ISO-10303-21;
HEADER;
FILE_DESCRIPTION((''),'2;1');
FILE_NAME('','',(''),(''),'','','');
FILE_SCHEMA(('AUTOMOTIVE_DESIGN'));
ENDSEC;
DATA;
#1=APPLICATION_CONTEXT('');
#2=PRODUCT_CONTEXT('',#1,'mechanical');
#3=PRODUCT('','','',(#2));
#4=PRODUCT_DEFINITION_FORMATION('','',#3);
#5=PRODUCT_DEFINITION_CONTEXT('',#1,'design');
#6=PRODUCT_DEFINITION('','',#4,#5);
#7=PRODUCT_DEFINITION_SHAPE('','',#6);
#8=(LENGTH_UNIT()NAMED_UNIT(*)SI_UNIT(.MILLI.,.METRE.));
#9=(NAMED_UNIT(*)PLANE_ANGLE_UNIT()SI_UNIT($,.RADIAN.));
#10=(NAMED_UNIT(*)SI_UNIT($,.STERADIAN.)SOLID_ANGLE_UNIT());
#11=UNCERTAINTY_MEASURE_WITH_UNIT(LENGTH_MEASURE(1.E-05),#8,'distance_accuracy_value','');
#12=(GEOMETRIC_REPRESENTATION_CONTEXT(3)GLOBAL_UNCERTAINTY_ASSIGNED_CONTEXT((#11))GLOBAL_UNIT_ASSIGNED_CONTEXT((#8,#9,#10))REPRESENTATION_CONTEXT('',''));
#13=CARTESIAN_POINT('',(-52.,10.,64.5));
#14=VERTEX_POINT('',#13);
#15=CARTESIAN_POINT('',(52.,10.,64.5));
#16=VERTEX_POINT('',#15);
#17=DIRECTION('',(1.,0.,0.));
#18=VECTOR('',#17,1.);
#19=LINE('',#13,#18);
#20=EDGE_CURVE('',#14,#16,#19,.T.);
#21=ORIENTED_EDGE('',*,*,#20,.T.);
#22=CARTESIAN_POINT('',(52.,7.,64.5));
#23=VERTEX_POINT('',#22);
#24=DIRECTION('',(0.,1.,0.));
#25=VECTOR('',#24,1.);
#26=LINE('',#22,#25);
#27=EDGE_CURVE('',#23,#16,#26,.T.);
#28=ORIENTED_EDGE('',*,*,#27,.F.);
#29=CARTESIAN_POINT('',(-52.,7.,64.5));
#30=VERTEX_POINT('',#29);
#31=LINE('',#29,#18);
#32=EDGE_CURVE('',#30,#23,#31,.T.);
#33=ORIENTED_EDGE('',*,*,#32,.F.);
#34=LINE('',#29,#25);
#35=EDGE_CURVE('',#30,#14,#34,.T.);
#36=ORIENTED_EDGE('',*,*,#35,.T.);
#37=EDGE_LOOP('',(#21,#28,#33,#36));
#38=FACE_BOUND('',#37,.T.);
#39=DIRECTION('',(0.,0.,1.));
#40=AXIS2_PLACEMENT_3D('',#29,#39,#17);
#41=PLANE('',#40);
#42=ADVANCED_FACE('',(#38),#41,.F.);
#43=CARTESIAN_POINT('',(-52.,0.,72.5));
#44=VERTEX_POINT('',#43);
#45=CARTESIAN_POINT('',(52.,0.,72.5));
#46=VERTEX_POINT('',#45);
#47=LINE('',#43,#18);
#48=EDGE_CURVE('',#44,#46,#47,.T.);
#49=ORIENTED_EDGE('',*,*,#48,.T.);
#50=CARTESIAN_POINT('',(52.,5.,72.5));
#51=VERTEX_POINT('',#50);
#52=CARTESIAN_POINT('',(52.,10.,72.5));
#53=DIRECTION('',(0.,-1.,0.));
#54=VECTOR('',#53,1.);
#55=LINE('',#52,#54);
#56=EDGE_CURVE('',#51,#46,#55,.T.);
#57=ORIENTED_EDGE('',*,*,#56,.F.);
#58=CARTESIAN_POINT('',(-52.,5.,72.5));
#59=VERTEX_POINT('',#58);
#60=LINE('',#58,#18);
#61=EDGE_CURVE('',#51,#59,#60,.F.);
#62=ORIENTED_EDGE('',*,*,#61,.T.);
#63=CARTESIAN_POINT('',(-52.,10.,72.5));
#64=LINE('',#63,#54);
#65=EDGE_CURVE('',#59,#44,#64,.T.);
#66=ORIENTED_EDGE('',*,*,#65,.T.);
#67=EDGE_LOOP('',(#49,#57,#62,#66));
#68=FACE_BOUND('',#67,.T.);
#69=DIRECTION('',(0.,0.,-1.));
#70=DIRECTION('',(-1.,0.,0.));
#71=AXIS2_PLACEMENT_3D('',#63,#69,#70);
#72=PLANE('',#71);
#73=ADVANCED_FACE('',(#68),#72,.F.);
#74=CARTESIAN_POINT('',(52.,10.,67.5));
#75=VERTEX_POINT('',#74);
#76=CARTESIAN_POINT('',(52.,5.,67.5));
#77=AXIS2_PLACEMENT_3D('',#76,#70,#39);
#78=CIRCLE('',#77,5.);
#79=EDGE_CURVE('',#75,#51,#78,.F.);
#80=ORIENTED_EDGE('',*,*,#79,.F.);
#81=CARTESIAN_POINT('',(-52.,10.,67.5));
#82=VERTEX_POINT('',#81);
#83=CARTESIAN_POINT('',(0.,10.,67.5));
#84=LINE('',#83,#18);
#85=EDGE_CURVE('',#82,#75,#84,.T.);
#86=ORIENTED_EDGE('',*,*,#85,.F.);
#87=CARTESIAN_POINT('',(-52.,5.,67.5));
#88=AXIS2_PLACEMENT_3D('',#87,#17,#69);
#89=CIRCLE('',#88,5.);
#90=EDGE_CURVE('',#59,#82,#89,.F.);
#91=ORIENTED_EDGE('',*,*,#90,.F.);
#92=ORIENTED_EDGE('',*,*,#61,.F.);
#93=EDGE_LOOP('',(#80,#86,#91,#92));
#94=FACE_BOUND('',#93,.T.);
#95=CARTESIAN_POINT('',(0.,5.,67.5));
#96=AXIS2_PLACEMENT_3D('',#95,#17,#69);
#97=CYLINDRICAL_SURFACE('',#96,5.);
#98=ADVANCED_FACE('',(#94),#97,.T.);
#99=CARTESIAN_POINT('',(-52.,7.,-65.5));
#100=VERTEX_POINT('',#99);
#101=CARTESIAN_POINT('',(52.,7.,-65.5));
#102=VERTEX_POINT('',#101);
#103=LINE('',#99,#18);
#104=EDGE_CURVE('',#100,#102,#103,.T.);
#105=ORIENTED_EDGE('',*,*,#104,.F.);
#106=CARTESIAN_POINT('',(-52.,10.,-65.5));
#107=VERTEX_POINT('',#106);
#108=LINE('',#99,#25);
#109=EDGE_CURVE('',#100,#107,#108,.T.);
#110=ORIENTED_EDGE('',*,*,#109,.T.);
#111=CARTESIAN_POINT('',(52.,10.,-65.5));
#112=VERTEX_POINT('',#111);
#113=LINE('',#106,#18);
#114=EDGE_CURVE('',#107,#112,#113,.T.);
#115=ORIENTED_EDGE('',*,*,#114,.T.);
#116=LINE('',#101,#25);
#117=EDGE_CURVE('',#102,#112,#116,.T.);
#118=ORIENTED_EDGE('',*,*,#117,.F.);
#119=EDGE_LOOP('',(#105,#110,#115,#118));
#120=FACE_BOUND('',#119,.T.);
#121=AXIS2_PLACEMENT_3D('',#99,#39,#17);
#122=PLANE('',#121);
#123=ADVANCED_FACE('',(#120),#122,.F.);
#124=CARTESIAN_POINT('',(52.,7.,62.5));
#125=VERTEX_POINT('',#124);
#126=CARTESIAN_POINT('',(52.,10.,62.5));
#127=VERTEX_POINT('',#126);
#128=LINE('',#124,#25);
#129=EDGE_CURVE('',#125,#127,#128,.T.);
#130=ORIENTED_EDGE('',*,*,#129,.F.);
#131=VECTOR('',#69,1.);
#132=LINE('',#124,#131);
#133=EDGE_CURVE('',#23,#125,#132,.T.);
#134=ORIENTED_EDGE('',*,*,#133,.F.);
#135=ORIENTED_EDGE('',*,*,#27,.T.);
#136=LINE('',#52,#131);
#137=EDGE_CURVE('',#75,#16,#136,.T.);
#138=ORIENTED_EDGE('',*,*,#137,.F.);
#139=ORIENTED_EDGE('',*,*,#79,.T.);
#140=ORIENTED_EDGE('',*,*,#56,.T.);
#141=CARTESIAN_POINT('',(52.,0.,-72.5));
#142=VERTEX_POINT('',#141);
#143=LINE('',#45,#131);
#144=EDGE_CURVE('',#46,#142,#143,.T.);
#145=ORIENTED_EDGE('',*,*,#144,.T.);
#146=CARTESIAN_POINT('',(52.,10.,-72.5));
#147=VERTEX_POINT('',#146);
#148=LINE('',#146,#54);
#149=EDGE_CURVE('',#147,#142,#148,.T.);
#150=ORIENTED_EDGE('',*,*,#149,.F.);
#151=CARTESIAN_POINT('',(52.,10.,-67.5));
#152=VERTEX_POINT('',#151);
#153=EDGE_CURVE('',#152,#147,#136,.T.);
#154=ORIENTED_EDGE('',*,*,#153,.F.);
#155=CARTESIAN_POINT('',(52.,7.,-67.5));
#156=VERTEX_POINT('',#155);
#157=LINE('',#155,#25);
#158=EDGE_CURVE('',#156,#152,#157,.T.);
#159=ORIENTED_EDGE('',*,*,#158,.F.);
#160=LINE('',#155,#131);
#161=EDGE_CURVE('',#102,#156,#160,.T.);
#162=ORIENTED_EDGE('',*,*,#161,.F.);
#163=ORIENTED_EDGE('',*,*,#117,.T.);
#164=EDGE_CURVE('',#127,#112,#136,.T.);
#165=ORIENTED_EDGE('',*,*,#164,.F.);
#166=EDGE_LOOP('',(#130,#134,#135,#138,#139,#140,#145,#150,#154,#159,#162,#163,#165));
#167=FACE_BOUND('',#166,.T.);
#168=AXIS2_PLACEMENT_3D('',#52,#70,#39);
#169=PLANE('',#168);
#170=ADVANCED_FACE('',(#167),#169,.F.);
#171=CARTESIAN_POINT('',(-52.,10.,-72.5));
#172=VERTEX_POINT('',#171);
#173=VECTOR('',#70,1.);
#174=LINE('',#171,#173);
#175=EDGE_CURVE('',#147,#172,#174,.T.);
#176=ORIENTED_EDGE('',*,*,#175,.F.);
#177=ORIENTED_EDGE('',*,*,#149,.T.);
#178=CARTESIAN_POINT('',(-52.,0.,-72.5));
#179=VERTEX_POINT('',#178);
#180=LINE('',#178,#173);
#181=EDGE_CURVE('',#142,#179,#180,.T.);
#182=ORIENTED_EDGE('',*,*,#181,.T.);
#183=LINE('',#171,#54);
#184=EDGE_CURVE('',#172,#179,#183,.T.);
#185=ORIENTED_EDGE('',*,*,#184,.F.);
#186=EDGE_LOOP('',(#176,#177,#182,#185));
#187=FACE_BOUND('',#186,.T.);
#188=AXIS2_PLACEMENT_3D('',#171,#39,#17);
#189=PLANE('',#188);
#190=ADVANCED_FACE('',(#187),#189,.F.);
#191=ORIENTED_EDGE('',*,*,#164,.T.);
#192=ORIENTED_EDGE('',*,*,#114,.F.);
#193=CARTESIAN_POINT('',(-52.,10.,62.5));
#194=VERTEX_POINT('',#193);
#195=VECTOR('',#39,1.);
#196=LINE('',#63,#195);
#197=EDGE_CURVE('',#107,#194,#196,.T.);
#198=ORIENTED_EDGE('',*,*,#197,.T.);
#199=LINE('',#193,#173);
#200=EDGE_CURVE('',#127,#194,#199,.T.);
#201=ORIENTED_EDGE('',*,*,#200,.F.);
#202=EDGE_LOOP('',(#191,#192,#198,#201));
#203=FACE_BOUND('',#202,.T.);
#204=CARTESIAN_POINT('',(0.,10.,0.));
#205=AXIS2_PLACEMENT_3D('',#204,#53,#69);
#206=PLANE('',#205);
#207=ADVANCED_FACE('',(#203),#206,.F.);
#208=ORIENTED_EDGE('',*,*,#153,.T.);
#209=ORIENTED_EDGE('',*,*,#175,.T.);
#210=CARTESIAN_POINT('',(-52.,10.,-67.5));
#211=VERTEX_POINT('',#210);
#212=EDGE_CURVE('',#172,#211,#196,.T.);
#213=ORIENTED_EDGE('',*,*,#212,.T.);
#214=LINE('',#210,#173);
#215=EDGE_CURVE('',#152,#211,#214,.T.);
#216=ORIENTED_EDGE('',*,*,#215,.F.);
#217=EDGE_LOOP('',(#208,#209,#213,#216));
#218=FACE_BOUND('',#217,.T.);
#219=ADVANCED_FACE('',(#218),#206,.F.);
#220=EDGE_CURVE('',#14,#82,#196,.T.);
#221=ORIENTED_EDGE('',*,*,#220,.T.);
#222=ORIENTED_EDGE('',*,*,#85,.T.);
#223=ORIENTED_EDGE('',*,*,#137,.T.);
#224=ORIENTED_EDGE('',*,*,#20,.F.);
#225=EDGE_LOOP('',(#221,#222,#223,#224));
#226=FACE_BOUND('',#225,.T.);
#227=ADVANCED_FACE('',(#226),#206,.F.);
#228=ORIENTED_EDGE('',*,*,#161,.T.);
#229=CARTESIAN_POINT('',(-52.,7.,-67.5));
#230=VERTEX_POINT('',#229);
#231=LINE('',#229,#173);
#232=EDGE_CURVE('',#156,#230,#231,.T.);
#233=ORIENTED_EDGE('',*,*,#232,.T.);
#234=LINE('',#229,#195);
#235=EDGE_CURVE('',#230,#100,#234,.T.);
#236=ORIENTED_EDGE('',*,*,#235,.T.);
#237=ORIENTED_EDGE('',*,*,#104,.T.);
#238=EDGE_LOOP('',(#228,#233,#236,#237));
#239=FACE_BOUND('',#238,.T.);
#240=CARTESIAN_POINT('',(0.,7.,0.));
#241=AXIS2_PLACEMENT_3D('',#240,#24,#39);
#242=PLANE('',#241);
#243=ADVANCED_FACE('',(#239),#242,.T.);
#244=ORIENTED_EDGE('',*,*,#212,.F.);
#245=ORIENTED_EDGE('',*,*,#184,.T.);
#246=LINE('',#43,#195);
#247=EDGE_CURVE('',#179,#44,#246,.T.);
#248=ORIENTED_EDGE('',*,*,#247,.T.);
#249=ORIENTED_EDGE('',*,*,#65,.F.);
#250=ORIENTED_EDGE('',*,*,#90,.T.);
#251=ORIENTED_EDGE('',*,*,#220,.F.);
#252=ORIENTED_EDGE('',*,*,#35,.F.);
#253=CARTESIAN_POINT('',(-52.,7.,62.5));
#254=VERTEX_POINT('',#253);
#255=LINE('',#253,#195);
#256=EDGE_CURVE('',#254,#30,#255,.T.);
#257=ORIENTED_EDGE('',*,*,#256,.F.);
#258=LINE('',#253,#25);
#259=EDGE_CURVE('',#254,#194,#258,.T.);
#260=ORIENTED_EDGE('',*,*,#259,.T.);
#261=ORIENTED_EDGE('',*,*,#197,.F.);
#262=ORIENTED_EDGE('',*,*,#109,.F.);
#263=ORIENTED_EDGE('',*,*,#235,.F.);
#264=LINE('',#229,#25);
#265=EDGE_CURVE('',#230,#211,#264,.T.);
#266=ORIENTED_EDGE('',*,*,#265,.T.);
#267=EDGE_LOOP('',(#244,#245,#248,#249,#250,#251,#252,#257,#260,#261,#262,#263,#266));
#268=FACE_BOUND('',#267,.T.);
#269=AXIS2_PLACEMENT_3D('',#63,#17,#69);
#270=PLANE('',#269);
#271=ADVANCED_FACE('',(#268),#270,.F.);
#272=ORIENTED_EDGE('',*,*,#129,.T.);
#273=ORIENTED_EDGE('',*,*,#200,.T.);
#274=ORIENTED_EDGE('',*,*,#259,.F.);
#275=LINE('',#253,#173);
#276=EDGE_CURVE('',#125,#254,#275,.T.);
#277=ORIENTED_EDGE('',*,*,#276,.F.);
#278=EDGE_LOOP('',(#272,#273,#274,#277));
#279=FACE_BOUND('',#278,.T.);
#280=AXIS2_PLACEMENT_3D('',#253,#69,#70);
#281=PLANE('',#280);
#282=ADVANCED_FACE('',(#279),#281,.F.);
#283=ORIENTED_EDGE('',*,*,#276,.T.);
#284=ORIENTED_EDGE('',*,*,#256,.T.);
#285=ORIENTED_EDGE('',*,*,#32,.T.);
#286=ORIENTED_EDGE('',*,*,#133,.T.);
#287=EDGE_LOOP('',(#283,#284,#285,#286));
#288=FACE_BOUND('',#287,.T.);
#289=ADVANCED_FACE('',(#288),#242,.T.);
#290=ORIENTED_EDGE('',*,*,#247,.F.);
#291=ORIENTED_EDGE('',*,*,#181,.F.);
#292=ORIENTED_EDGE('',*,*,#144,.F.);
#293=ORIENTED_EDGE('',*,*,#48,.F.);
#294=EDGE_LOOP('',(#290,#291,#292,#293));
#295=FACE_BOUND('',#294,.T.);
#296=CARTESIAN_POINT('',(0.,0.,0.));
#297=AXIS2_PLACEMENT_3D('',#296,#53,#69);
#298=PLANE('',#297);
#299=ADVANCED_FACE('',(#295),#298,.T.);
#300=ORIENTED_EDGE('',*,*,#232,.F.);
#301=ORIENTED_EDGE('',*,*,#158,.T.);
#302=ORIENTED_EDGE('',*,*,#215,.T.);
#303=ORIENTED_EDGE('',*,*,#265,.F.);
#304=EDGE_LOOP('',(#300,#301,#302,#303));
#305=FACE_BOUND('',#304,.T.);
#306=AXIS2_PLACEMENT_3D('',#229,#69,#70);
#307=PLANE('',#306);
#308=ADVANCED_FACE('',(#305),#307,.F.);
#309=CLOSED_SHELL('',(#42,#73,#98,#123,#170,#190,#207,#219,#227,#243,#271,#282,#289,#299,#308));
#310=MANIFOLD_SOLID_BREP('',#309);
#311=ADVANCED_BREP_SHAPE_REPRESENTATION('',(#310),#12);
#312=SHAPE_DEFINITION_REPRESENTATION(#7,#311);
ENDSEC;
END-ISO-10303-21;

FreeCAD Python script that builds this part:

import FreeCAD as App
import Part
import Sketcher
Q = App.Units.Quantity


def edges_at(feature, points):
    """Names of the edges that pass closest to the given points."""
    edges = feature.Shape.Edges
    near = lambda p: min(range(len(edges)), key=lambda i: edges[i].distToShape(Part.Vertex(*p))[0])
    return sorted({f"Edge{near(p) + 1}" for p in points})

doc = App.newDocument("Part")
params = doc.addObject("Spreadsheet::Sheet", "Params")
for row, (alias, value) in enumerate([
    ("sketch1_width", "104 mm"),
    ("sketch1_height", "145 mm"),
    ("pad1_length", "10 mm"),
    ("sketch2_width", "104 mm"),
    ("sketch2_height", "2 mm"),
    ("pocket1_length", "3 mm"),
    ("fillet_radius", "5 mm"),
], start=1):
    params.set(f"A{row}", alias)
    params.set(f"B{row}", "=" + value)
    params.setAlias(f"B{row}", alias)

body = doc.addObject("PartDesign::Body", "Body")

sketch1 = doc.addObject("Sketcher::SketchObject", "Sketch")
body.addObject(sketch1)
sketch1.AttachmentSupport = (doc.XZ_Plane, [""])
sketch1.MapMode = "FlatFace"
sketch1.addGeometry([
    Part.LineSegment(App.Vector(-52, -72, 0), App.Vector(-52, 72, 0)),
    Part.LineSegment(App.Vector(-52, 72, 0), App.Vector(52, 72, 0)),
    Part.LineSegment(App.Vector(52, 72, 0), App.Vector(52, -72, 0)),
    Part.LineSegment(App.Vector(52, -72, 0), App.Vector(-52, -72, 0)),
], False)
sketch1.addConstraint([
    Sketcher.Constraint("Coincident", 0, 2, 1, 1),
    Sketcher.Constraint("Coincident", 1, 2, 2, 1),
    Sketcher.Constraint("Coincident", 2, 2, 3, 1),
    Sketcher.Constraint("Coincident", 3, 2, 0, 1),
    Sketcher.Constraint("Vertical", 0),
    Sketcher.Constraint("Horizontal", 1),
    Sketcher.Constraint("Vertical", 2),
    Sketcher.Constraint("Horizontal", 3),
    Sketcher.Constraint("Symmetric", 0, 2, 2, 2, -1, 1),
    Sketcher.Constraint("DistanceX", 1, 1, 1, 2, Q("104 mm")),
    Sketcher.Constraint("DistanceY", 0, 1, 0, 2, Q("145 mm")),
])
sketch1.setExpression("Constraints[9]", "Params.sketch1_width")
sketch1.setExpression("Constraints[10]", "Params.sketch1_height")
pad1 = doc.addObject("PartDesign::Pad", "Pad")
body.addObject(pad1)
pad1.Profile = sketch1
pad1.setExpression("Length", "Params.pad1_length")
pad1.Reversed = True

sketch2 = doc.addObject("Sketcher::SketchObject", "Sketch001")
body.addObject(sketch2)
sketch2.AttachmentSupport = (doc.XZ_Plane, [""])
sketch2.MapMode = "FlatFace"
sketch2.AttachmentOffset = App.Placement(App.Vector(0, 0, -10), App.Rotation())
sketch2.addGeometry([
    Part.LineSegment(App.Vector(-52, -67.5, 0), App.Vector(-52, -65.5, 0)),
    Part.LineSegment(App.Vector(-52, -65.5, 0), App.Vector(52, -65.5, 0)),
    Part.LineSegment(App.Vector(52, -65.5, 0), App.Vector(52, -67.5, 0)),
    Part.LineSegment(App.Vector(52, -67.5, 0), App.Vector(-52, -67.5, 0)),
    Part.LineSegment(App.Vector(-52, 62.5, 0), App.Vector(-52, 64.5, 0)),
    Part.LineSegment(App.Vector(-52, 64.5, 0), App.Vector(52, 64.5, 0)),
    Part.LineSegment(App.Vector(52, 64.5, 0), App.Vector(52, 62.5, 0)),
    Part.LineSegment(App.Vector(52, 62.5, 0), App.Vector(-52, 62.5, 0)),
], False)
sketch2.addConstraint([
    Sketcher.Constraint("Coincident", 0, 2, 1, 1),
    Sketcher.Constraint("Coincident", 1, 2, 2, 1),
    Sketcher.Constraint("Coincident", 2, 2, 3, 1),
    Sketcher.Constraint("Coincident", 3, 2, 0, 1),
    Sketcher.Constraint("Coincident", 4, 2, 5, 1),
    Sketcher.Constraint("Coincident", 5, 2, 6, 1),
    Sketcher.Constraint("Coincident", 6, 2, 7, 1),
    Sketcher.Constraint("Coincident", 7, 2, 4, 1),
    Sketcher.Constraint("Vertical", 0),
    Sketcher.Constraint("Horizontal", 1),
    Sketcher.Constraint("Vertical", 2),
    Sketcher.Constraint("Horizontal", 3),
    Sketcher.Constraint("Vertical", 4),
    Sketcher.Constraint("Horizontal", 5),
    Sketcher.Constraint("Vertical", 6),
    Sketcher.Constraint("Horizontal", 7),
    Sketcher.Constraint("Vertical", 3, 2, 4, 2),
    Sketcher.Constraint("Vertical", 2, 2, 5, 2),
    Sketcher.Constraint("Equal", 2, 4),
    Sketcher.Constraint("DistanceX", 1, 1, 1, 2, Q("104 mm")),
    Sketcher.Constraint("DistanceY", 0, 1, 0, 2, Q("2 mm")),
    Sketcher.Constraint("DistanceX", 0, 2, -1, 1, Q("52 mm")),
    Sketcher.Constraint("DistanceY", 0, 2, 4, 2, Q("130 mm")),
    Sketcher.Constraint("DistanceY", 0, 2, -1, 1, Q("65.5 mm")),
])
sketch2.setExpression("Constraints[19]", "Params.sketch2_width")
sketch2.setExpression("Constraints[20]", "Params.sketch2_height")
pocket1 = doc.addObject("PartDesign::Pocket", "Pocket")
body.addObject(pocket1)
pocket1.Profile = sketch2
pocket1.setExpression("Length", "Params.pocket1_length")
pocket1.Reversed = True
doc.recompute()

fillet = doc.addObject("PartDesign::Fillet", "Fillet")
body.addObject(fillet)
fillet.Base = (pocket1, edges_at(pocket1, [(0, 10, 72.5)]))
fillet.setExpression("Radius", "Params.fillet_radius")

doc.recompute()
